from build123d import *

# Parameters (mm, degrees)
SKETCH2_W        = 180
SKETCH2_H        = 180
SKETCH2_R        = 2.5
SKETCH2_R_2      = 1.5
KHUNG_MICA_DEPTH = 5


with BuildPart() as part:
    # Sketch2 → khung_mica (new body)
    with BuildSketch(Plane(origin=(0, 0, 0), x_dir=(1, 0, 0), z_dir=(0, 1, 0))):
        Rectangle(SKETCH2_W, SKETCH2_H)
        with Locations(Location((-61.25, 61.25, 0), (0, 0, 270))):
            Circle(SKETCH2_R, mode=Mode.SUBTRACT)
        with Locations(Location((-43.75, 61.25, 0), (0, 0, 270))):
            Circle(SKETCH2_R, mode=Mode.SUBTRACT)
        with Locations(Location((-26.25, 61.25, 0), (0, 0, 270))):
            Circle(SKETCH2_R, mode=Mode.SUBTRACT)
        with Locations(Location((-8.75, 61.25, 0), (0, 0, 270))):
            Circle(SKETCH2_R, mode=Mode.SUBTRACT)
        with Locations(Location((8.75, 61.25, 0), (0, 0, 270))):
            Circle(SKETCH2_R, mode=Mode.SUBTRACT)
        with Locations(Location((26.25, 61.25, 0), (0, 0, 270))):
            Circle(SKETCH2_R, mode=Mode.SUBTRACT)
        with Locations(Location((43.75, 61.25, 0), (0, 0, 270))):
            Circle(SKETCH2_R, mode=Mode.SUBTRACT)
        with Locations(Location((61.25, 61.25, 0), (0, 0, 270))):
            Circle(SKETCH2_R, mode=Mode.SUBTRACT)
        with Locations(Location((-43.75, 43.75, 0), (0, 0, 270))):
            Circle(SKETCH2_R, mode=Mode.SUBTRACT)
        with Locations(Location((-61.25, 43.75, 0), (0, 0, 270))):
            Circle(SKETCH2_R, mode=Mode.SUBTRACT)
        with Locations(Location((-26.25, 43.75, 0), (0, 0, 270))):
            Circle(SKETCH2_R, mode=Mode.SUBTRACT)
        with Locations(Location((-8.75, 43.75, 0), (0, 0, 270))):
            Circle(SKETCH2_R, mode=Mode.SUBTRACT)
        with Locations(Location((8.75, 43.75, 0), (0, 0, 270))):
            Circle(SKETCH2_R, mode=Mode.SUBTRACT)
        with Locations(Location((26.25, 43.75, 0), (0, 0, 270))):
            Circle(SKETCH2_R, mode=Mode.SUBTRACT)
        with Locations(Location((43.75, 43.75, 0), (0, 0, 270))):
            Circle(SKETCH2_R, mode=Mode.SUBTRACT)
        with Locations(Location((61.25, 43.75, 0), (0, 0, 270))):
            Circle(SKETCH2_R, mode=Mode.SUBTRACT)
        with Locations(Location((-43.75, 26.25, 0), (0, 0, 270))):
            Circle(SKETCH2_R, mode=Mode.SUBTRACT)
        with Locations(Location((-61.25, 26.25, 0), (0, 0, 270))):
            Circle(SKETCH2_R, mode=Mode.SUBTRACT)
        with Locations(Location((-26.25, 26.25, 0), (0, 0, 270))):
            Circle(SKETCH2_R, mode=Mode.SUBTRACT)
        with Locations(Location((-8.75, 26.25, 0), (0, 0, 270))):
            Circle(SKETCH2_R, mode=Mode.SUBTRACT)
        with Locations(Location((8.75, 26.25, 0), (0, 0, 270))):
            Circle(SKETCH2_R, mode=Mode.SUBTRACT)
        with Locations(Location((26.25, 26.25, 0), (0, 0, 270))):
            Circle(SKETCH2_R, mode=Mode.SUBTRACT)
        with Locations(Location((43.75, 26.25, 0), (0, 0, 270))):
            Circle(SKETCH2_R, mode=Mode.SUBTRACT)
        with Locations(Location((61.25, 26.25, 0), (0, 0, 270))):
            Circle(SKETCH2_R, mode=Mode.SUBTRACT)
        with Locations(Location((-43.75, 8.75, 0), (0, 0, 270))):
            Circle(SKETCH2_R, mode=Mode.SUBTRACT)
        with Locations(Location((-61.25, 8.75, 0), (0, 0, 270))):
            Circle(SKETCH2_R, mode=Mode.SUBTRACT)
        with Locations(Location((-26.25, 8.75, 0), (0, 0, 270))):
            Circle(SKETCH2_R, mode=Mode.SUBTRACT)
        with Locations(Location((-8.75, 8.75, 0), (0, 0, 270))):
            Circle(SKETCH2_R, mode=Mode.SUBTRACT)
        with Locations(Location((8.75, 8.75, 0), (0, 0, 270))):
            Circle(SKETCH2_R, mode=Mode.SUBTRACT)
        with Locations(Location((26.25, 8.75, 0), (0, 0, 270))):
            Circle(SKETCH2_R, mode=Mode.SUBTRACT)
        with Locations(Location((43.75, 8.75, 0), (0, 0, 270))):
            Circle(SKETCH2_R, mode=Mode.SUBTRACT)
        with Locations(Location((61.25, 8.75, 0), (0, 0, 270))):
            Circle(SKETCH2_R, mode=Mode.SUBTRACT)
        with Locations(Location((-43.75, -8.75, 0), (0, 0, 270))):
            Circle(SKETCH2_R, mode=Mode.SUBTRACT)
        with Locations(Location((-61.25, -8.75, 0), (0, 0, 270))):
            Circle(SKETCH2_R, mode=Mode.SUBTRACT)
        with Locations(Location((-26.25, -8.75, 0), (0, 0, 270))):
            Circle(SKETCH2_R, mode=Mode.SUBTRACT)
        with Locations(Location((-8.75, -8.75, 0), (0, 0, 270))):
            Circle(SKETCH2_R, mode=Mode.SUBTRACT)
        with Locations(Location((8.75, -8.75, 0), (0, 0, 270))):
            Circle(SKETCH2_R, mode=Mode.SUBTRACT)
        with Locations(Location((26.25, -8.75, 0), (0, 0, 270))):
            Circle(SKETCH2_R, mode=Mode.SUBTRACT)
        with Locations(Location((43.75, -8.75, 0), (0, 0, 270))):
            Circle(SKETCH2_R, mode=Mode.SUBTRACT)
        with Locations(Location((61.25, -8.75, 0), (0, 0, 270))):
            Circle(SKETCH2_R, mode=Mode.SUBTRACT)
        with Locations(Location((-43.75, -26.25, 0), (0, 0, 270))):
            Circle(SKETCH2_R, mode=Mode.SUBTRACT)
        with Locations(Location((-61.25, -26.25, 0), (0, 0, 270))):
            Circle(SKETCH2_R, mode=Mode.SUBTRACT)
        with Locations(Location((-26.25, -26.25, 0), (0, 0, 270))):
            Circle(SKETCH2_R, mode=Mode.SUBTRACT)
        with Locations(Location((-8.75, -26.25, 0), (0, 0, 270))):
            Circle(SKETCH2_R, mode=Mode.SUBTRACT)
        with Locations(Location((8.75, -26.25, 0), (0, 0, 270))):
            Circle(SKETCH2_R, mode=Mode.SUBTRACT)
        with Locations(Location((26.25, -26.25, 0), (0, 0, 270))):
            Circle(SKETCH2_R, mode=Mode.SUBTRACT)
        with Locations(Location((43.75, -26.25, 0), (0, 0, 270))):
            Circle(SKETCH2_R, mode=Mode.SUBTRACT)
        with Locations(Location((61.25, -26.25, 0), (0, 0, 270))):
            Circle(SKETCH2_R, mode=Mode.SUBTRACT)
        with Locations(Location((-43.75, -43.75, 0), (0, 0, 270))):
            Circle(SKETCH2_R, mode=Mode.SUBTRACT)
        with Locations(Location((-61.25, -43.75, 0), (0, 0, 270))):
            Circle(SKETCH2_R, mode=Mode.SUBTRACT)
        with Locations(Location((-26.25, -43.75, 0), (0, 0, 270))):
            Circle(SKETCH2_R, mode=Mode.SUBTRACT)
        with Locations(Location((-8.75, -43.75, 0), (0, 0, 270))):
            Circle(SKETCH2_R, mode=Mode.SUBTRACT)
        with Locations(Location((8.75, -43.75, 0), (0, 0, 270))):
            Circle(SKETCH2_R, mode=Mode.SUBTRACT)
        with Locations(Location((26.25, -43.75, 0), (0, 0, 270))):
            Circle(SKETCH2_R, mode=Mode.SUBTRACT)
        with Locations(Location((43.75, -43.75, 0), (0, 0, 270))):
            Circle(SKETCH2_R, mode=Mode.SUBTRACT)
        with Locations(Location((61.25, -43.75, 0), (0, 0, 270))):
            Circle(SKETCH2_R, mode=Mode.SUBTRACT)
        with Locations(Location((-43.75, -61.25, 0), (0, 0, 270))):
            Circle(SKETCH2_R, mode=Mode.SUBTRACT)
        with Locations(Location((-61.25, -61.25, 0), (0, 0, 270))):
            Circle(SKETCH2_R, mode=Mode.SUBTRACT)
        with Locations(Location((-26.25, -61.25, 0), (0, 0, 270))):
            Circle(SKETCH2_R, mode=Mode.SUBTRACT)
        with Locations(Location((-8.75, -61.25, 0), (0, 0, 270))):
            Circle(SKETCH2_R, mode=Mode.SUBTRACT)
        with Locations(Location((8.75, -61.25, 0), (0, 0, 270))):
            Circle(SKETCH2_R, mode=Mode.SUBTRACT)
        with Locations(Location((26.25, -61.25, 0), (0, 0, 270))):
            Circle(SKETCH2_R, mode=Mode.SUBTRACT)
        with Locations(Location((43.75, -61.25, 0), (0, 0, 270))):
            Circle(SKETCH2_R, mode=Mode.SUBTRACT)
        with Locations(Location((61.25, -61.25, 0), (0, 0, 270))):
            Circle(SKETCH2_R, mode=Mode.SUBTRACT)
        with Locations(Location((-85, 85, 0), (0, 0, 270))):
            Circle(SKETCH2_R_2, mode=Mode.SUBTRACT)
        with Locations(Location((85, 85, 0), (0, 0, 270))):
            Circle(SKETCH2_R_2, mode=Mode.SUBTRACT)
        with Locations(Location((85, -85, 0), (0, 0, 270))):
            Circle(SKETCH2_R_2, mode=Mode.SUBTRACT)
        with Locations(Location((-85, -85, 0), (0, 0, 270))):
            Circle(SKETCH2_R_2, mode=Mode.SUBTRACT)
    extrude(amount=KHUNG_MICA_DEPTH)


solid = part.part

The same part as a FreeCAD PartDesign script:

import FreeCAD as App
import Part
import Sketcher

V = App.Vector


def add_polygon(sketch, points):
    """Adds a closed chain of lines whose ends are joined by coincident constraints."""
    first, n = sketch.GeometryCount, len(points)
    for a, b in zip(points, points[1:] + points[:1]):
        sketch.addGeometry(Part.LineSegment(App.Vector(*a, 0), App.Vector(*b, 0)), False)
    for i in range(n):
        sketch.addConstraint(Sketcher.Constraint("Coincident", first + i, 2, first + (i + 1) % n, 1))

doc = App.newDocument("Part")
body = doc.addObject("PartDesign::Body", "Body")

# Sketch on XZ plane
sketch1 = body.newObject("Sketcher::SketchObject", "Sketch")
sketch1.AttachmentSupport = (doc.getObject("XZ_Plane"), [""])
sketch1.MapMode = "FlatFace"
add_polygon(sketch1, [(-90, -90), (-90, 90), (90, 90), (90, -90)])  # lines 0-3
sketch1.addGeometry(Part.Circle(V(-85, 85, 0), V(0, 0, 1), 1.5), False)  # 4
sketch1.addGeometry(Part.Circle(V(-61.2, 61.2, 0), V(0, 0, 1), 2.5), False)  # 5
sketch1.addGeometry(Part.Circle(V(-43.8, 61.2, 0), V(0, 0, 1), 2.5), False)  # 6
sketch1.addGeometry(Part.Circle(V(-61.2, 43.8, 0), V(0, 0, 1), 2.5), False)  # 7
sketch1.addGeometry(Part.Circle(V(-43.8, 43.8, 0), V(0, 0, 1), 2.5), False)  # 8
sketch1.addGeometry(Part.Circle(V(-26.2, 61.2, 0), V(0, 0, 1), 2.5), False)  # 9
sketch1.addGeometry(Part.Circle(V(-26.2, 43.8, 0), V(0, 0, 1), 2.5), False)  # 10
sketch1.addGeometry(Part.Circle(V(-8.8, 61.2, 0), V(0, 0, 1), 2.5), False)  # 11
sketch1.addGeometry(Part.Circle(V(-8.8, 43.8, 0), V(0, 0, 1), 2.5), False)  # 12
sketch1.addGeometry(Part.Circle(V(-61.2, 26.2, 0), V(0, 0, 1), 2.5), False)  # 13
sketch1.addGeometry(Part.Circle(V(-43.8, 26.2, 0), V(0, 0, 1), 2.5), False)  # 14
sketch1.addGeometry(Part.Circle(V(-61.2, 8.8, 0), V(0, 0, 1), 2.5), False)  # 15
sketch1.addGeometry(Part.Circle(V(-43.8, 8.8, 0), V(0, 0, 1), 2.5), False)  # 16
sketch1.addGeometry(Part.Circle(V(-26.2, 26.2, 0), V(0, 0, 1), 2.5), False)  # 17
sketch1.addGeometry(Part.Circle(V(-8.8, 26.2, 0), V(0, 0, 1), 2.5), False)  # 18
sketch1.addGeometry(Part.Circle(V(-26.2, 8.8, 0), V(0, 0, 1), 2.5), False)  # 19
sketch1.addGeometry(Part.Circle(V(-8.8, 8.8, 0), V(0, 0, 1), 2.5), False)  # 20
sketch1.addGeometry(Part.Circle(V(8.8, 61.2, 0), V(0, 0, 1), 2.5), False)  # 21
sketch1.addGeometry(Part.Circle(V(8.8, 43.8, 0), V(0, 0, 1), 2.5), False)  # 22
sketch1.addGeometry(Part.Circle(V(26.2, 61.2, 0), V(0, 0, 1), 2.5), False)  # 23
sketch1.addGeometry(Part.Circle(V(26.2, 43.8, 0), V(0, 0, 1), 2.5), False)  # 24
sketch1.addGeometry(Part.Circle(V(85, 85, 0), V(0, 0, 1), 1.5), False)  # 25
sketch1.addGeometry(Part.Circle(V(43.8, 61.2, 0), V(0, 0, 1), 2.5), False)  # 26
sketch1.addGeometry(Part.Circle(V(61.2, 61.2, 0), V(0, 0, 1), 2.5), False)  # 27
sketch1.addGeometry(Part.Circle(V(43.8, 43.8, 0), V(0, 0, 1), 2.5), False)  # 28
sketch1.addGeometry(Part.Circle(V(61.2, 43.8, 0), V(0, 0, 1), 2.5), False)  # 29
sketch1.addGeometry(Part.Circle(V(8.8, 26.2, 0), V(0, 0, 1), 2.5), False)  # 30
sketch1.addGeometry(Part.Circle(V(26.2, 26.2, 0), V(0, 0, 1), 2.5), False)  # 31
sketch1.addGeometry(Part.Circle(V(8.8, 8.8, 0), V(0, 0, 1), 2.5), False)  # 32
sketch1.addGeometry(Part.Circle(V(26.2, 8.8, 0), V(0, 0, 1), 2.5), False)  # 33
sketch1.addGeometry(Part.Circle(V(43.8, 26.2, 0), V(0, 0, 1), 2.5), False)  # 34
sketch1.addGeometry(Part.Circle(V(61.2, 26.2, 0), V(0, 0, 1), 2.5), False)  # 35
sketch1.addGeometry(Part.Circle(V(43.8, 8.8, 0), V(0, 0, 1), 2.5), False)  # 36
sketch1.addGeometry(Part.Circle(V(61.2, 8.8, 0), V(0, 0, 1), 2.5), False)  # 37
sketch1.addGeometry(Part.Circle(V(-61.2, -8.8, 0), V(0, 0, 1), 2.5), False)  # 38
sketch1.addGeometry(Part.Circle(V(-43.8, -8.8, 0), V(0, 0, 1), 2.5), False)  # 39
sketch1.addGeometry(Part.Circle(V(-61.2, -26.2, 0), V(0, 0, 1), 2.5), False)  # 40
sketch1.addGeometry(Part.Circle(V(-43.8, -26.2, 0), V(0, 0, 1), 2.5), False)  # 41
sketch1.addGeometry(Part.Circle(V(-26.2, -8.8, 0), V(0, 0, 1), 2.5), False)  # 42
sketch1.addGeometry(Part.Circle(V(-8.8, -8.8, 0), V(0, 0, 1), 2.5), False)  # 43
sketch1.addGeometry(Part.Circle(V(-26.2, -26.2, 0), V(0, 0, 1), 2.5), False)  # 44
sketch1.addGeometry(Part.Circle(V(-8.8, -26.2, 0), V(0, 0, 1), 2.5), False)  # 45
sketch1.addGeometry(Part.Circle(V(-61.2, -43.8, 0), V(0, 0, 1), 2.5), False)  # 46
sketch1.addGeometry(Part.Circle(V(-43.8, -43.8, 0), V(0, 0, 1), 2.5), False)  # 47
sketch1.addGeometry(Part.Circle(V(-61.2, -61.2, 0), V(0, 0, 1), 2.5), False)  # 48
sketch1.addGeometry(Part.Circle(V(-43.8, -61.2, 0), V(0, 0, 1), 2.5), False)  # 49
sketch1.addGeometry(Part.Circle(V(-85, -85, 0), V(0, 0, 1), 1.5), False)  # 50
sketch1.addGeometry(Part.Circle(V(-26.2, -43.8, 0), V(0, 0, 1), 2.5), False)  # 51
sketch1.addGeometry(Part.Circle(V(-26.2, -61.2, 0), V(0, 0, 1), 2.5), False)  # 52
sketch1.addGeometry(Part.Circle(V(-8.8, -43.8, 0), V(0, 0, 1), 2.5), False)  # 53
sketch1.addGeometry(Part.Circle(V(-8.8, -61.2, 0), V(0, 0, 1), 2.5), False)  # 54
sketch1.addGeometry(Part.Circle(V(8.8, -8.8, 0), V(0, 0, 1), 2.5), False)  # 55
sketch1.addGeometry(Part.Circle(V(26.2, -8.8, 0), V(0, 0, 1), 2.5), False)  # 56
sketch1.addGeometry(Part.Circle(V(8.8, -26.2, 0), V(0, 0, 1), 2.5), False)  # 57
sketch1.addGeometry(Part.Circle(V(26.2, -26.2, 0), V(0, 0, 1), 2.5), False)  # 58
sketch1.addGeometry(Part.Circle(V(43.8, -8.8, 0), V(0, 0, 1), 2.5), False)  # 59
sketch1.addGeometry(Part.Circle(V(61.2, -8.8, 0), V(0, 0, 1), 2.5), False)  # 60
sketch1.addGeometry(Part.Circle(V(43.8, -26.2, 0), V(0, 0, 1), 2.5), False)  # 61
sketch1.addGeometry(Part.Circle(V(61.2, -26.2, 0), V(0, 0, 1), 2.5), False)  # 62
sketch1.addGeometry(Part.Circle(V(8.8, -43.8, 0), V(0, 0, 1), 2.5), False)  # 63
sketch1.addGeometry(Part.Circle(V(8.8, -61.2, 0), V(0, 0, 1), 2.5), False)  # 64
sketch1.addGeometry(Part.Circle(V(26.2, -43.8, 0), V(0, 0, 1), 2.5), False)  # 65
sketch1.addGeometry(Part.Circle(V(26.2, -61.2, 0), V(0, 0, 1), 2.5), False)  # 66
sketch1.addGeometry(Part.Circle(V(43.8, -43.8, 0), V(0, 0, 1), 2.5), False)  # 67
sketch1.addGeometry(Part.Circle(V(61.2, -43.8, 0), V(0, 0, 1), 2.5), False)  # 68
sketch1.addGeometry(Part.Circle(V(43.8, -61.2, 0), V(0, 0, 1), 2.5), False)  # 69
sketch1.addGeometry(Part.Circle(V(61.2, -61.2, 0), V(0, 0, 1), 2.5), False)  # 70
sketch1.addGeometry(Part.Circle(V(85, -85, 0), V(0, 0, 1), 1.5), False)  # 71
sketch1.addConstraint(Sketcher.Constraint("Vertical", 0))
sketch1.addConstraint(Sketcher.Constraint("Horizontal", 1))
sketch1.addConstraint(Sketcher.Constraint("Vertical", 2))
sketch1.addConstraint(Sketcher.Constraint("Horizontal", 3))
sketch1.addConstraint(Sketcher.Constraint("Equal", 5, 6))
sketch1.addConstraint(Sketcher.Constraint("Equal", 6, 7))
sketch1.addConstraint(Sketcher.Constraint("Equal", 7, 8))
sketch1.addConstraint(Sketcher.Constraint("Equal", 8, 9))
sketch1.addConstraint(Sketcher.Constraint("Equal", 9, 10))
sketch1.addConstraint(Sketcher.Constraint("Equal", 10, 11))
sketch1.addConstraint(Sketcher.Constraint("Equal", 11, 12))
sketch1.addConstraint(Sketcher.Constraint("Equal", 12, 13))
sketch1.addConstraint(Sketcher.Constraint("Equal", 13, 14))
sketch1.addConstraint(Sketcher.Constraint("Equal", 14, 15))
sketch1.addConstraint(Sketcher.Constraint("Equal", 15, 16))
sketch1.addConstraint(Sketcher.Constraint("Equal", 16, 17))
sketch1.addConstraint(Sketcher.Constraint("Equal", 17, 18))
sketch1.addConstraint(Sketcher.Constraint("Equal", 18, 19))
sketch1.addConstraint(Sketcher.Constraint("Equal", 19, 20))
sketch1.addConstraint(Sketcher.Constraint("Equal", 20, 21))
sketch1.addConstraint(Sketcher.Constraint("Equal", 21, 22))
sketch1.addConstraint(Sketcher.Constraint("Equal", 22, 23))
sketch1.addConstraint(Sketcher.Constraint("Equal", 23, 24))
sketch1.addConstraint(Sketcher.Constraint("Equal", 4, 25))
sketch1.addConstraint(Sketcher.Constraint("Equal", 24, 26))
sketch1.addConstraint(Sketcher.Constraint("Equal", 26, 27))
sketch1.addConstraint(Sketcher.Constraint("Equal", 27, 28))
sketch1.addConstraint(Sketcher.Constraint("Equal", 28, 29))
sketch1.addConstraint(Sketcher.Constraint("Equal", 29, 30))
sketch1.addConstraint(Sketcher.Constraint("Equal", 30, 31))
sketch1.addConstraint(Sketcher.Constraint("Equal", 31, 32))
sketch1.addConstraint(Sketcher.Constraint("Equal", 32, 33))
sketch1.addConstraint(Sketcher.Constraint("Equal", 33, 34))
sketch1.addConstraint(Sketcher.Constraint("Equal", 34, 35))
sketch1.addConstraint(Sketcher.Constraint("Equal", 35, 36))
sketch1.addConstraint(Sketcher.Constraint("Equal", 36, 37))
sketch1.addConstraint(Sketcher.Constraint("Equal", 37, 38))
sketch1.addConstraint(Sketcher.Constraint("Equal", 38, 39))
sketch1.addConstraint(Sketcher.Constraint("Equal", 39, 40))
sketch1.addConstraint(Sketcher.Constraint("Equal", 40, 41))
sketch1.addConstraint(Sketcher.Constraint("Equal", 41, 42))
sketch1.addConstraint(Sketcher.Constraint("Equal", 42, 43))
sketch1.addConstraint(Sketcher.Constraint("Equal", 43, 44))
sketch1.addConstraint(Sketcher.Constraint("Equal", 44, 45))
sketch1.addConstraint(Sketcher.Constraint("Equal", 45, 46))
sketch1.addConstraint(Sketcher.Constraint("Equal", 46, 47))
sketch1.addConstraint(Sketcher.Constraint("Equal", 47, 48))
sketch1.addConstraint(Sketcher.Constraint("Equal", 48, 49))
sketch1.addConstraint(Sketcher.Constraint("Equal", 25, 50))
sketch1.addConstraint(Sketcher.Constraint("Equal", 49, 51))
sketch1.addConstraint(Sketcher.Constraint("Equal", 51, 52))
sketch1.addConstraint(Sketcher.Constraint("Equal", 52, 53))
sketch1.addConstraint(Sketcher.Constraint("Equal", 53, 54))
sketch1.addConstraint(Sketcher.Constraint("Equal", 54, 55))
sketch1.addConstraint(Sketcher.Constraint("Equal", 55, 56))
sketch1.addConstraint(Sketcher.Constraint("Equal", 56, 57))
sketch1.addConstraint(Sketcher.Constraint("Equal", 57, 58))
sketch1.addConstraint(Sketcher.Constraint("Equal", 58, 59))
sketch1.addConstraint(Sketcher.Constraint("Equal", 59, 60))
sketch1.addConstraint(Sketcher.Constraint("Equal", 60, 61))
sketch1.addConstraint(Sketcher.Constraint("Equal", 61, 62))
sketch1.addConstraint(Sketcher.Constraint("Equal", 62, 63))
sketch1.addConstraint(Sketcher.Constraint("Equal", 63, 64))
sketch1.addConstraint(Sketcher.Constraint("Equal", 64, 65))
sketch1.addConstraint(Sketcher.Constraint("Equal", 65, 66))
sketch1.addConstraint(Sketcher.Constraint("Equal", 66, 67))
sketch1.addConstraint(Sketcher.Constraint("Equal", 67, 68))
sketch1.addConstraint(Sketcher.Constraint("Equal", 68, 69))
sketch1.addConstraint(Sketcher.Constraint("Equal", 69, 70))
sketch1.addConstraint(Sketcher.Constraint("Equal", 50, 71))
sketch1.addConstraint(Sketcher.Constraint("Symmetric", 37, 3, 38, 3, -1, 1))
sketch1.addConstraint(Sketcher.Constraint("Symmetric", 36, 3, 39, 3, -1, 1))
sketch1.addConstraint(Sketcher.Constraint("Symmetric", 35, 3, 40, 3, -1, 1))
sketch1.addConstraint(Sketcher.Constraint("Symmetric", 34, 3, 41, 3, -1, 1))
sketch1.addConstraint(Sketcher.Constraint("Symmetric", 33, 3, 42, 3, -1, 1))
sketch1.addConstraint(Sketcher.Constraint("Symmetric", 32, 3, 43, 3, -1, 1))
sketch1.addConstraint(Sketcher.Constraint("Symmetric", 31, 3, 44, 3, -1, 1))
sketch1.addConstraint(Sketcher.Constraint("Symmetric", 30, 3, 45, 3, -1, 1))
sketch1.addConstraint(Sketcher.Constraint("Symmetric", 29, 3, 46, 3, -1, 1))
sketch1.addConstraint(Sketcher.Constraint("Symmetric", 28, 3, 47, 3, -1, 1))
sketch1.addConstraint(Sketcher.Constraint("Symmetric", 27, 3, 48, 3, -1, 1))
sketch1.addConstraint(Sketcher.Constraint("Symmetric", 26, 3, 49, 3, -1, 1))
sketch1.addConstraint(Sketcher.Constraint("Symmetric", 25, 3, 50, 3, -1, 1))
sketch1.addConstraint(Sketcher.Constraint("Symmetric", 24, 3, 51, 3, -1, 1))
sketch1.addConstraint(Sketcher.Constraint("Symmetric", 23, 3, 52, 3, -1, 1))
sketch1.addConstraint(Sketcher.Constraint("Symmetric", 22, 3, 53, 3, -1, 1))
sketch1.addConstraint(Sketcher.Constraint("Symmetric", 21, 3, 54, 3, -1, 1))
sketch1.addConstraint(Sketcher.Constraint("Symmetric", 20, 3, 55, 3, -1, 1))
sketch1.addConstraint(Sketcher.Constraint("Symmetric", 19, 3, 56, 3, -1, 1))
sketch1.addConstraint(Sketcher.Constraint("Symmetric", 18, 3, 57, 3, -1, 1))
sketch1.addConstraint(Sketcher.Constraint("Symmetric", 17, 3, 58, 3, -1, 1))
sketch1.addConstraint(Sketcher.Constraint("Symmetric", 16, 3, 59, 3, -1, 1))
sketch1.addConstraint(Sketcher.Constraint("Symmetric", 15, 3, 60, 3, -1, 1))
sketch1.addConstraint(Sketcher.Constraint("Symmetric", 14, 3, 61, 3, -1, 1))
sketch1.addConstraint(Sketcher.Constraint("Symmetric", 13, 3, 62, 3, -1, 1))
sketch1.addConstraint(Sketcher.Constraint("Symmetric", 12, 3, 63, 3, -1, 1))
sketch1.addConstraint(Sketcher.Constraint("Symmetric", 11, 3, 64, 3, -1, 1))
sketch1.addConstraint(Sketcher.Constraint("Symmetric", 10, 3, 65, 3, -1, 1))
sketch1.addConstraint(Sketcher.Constraint("Symmetric", 9, 3, 66, 3, -1, 1))
sketch1.addConstraint(Sketcher.Constraint("Symmetric", 8, 3, 67, 3, -1, 1))
sketch1.addConstraint(Sketcher.Constraint("Symmetric", 7, 3, 68, 3, -1, 1))
sketch1.addConstraint(Sketcher.Constraint("Symmetric", 6, 3, 69, 3, -1, 1))
sketch1.addConstraint(Sketcher.Constraint("Symmetric", 5, 3, 70, 3, -1, 1))
sketch1.addConstraint(Sketcher.Constraint("Symmetric", 4, 3, 71, 3, -1, 1))
sketch1.addConstraint(Sketcher.Constraint("Symmetric", 0, 2, 2, 2, -1, 1))
sketch1.addConstraint(Sketcher.Constraint("Symmetric", 11, 3, 21, 3, -2))
sketch1.addConstraint(Sketcher.Constraint("Symmetric", 12, 3, 22, 3, -2))
sketch1.addConstraint(Sketcher.Constraint("Symmetric", 9, 3, 23, 3, -2))
sketch1.addConstraint(Sketcher.Constraint("Symmetric", 10, 3, 24, 3, -2))
sketch1.addConstraint(Sketcher.Constraint("Symmetric", 4, 3, 25, 3, -2))
sketch1.addConstraint(Sketcher.Constraint("Symmetric", 6, 3, 26, 3, -2))
sketch1.addConstraint(Sketcher.Constraint("Symmetric", 5, 3, 27, 3, -2))
sketch1.addConstraint(Sketcher.Constraint("Symmetric", 8, 3, 28, 3, -2))
sketch1.addConstraint(Sketcher.Constraint("Symmetric", 7, 3, 29, 3, -2))
sketch1.addConstraint(Sketcher.Constraint("Symmetric", 18, 3, 30, 3, -2))
sketch1.addConstraint(Sketcher.Constraint("Symmetric", 17, 3, 31, 3, -2))
sketch1.addConstraint(Sketcher.Constraint("Symmetric", 20, 3, 32, 3, -2))
sketch1.addConstraint(Sketcher.Constraint("Symmetric", 19, 3, 33, 3, -2))
sketch1.addConstraint(Sketcher.Constraint("Symmetric", 14, 3, 34, 3, -2))
sketch1.addConstraint(Sketcher.Constraint("Symmetric", 13, 3, 35, 3, -2))
sketch1.addConstraint(Sketcher.Constraint("Symmetric", 16, 3, 36, 3, -2))
sketch1.addConstraint(Sketcher.Constraint("Symmetric", 15, 3, 37, 3, -2))
sketch1.addConstraint(Sketcher.Constraint("Horizontal", 5, 3, 6, 3))
sketch1.addConstraint(Sketcher.Constraint("Horizontal", 7, 3, 8, 3))
sketch1.addConstraint(Sketcher.Constraint("Horizontal", 6, 3, 9, 3))
sketch1.addConstraint(Sketcher.Constraint("Horizontal", 8, 3, 10, 3))
sketch1.addConstraint(Sketcher.Constraint("Horizontal", 9, 3, 11, 3))
sketch1.addConstraint(Sketcher.Constraint("Horizontal", 10, 3, 12, 3))
sketch1.addConstraint(Sketcher.Constraint("Horizontal", 13, 3, 14, 3))
sketch1.addConstraint(Sketcher.Constraint("Horizontal", 15, 3, 16, 3))
sketch1.addConstraint(Sketcher.Constraint("Horizontal", 14, 3, 17, 3))
sketch1.addConstraint(Sketcher.Constraint("Horizontal", 17, 3, 18, 3))
sketch1.addConstraint(Sketcher.Constraint("Horizontal", 16, 3, 19, 3))
sketch1.addConstraint(Sketcher.Constraint("Horizontal", 19, 3, 20, 3))
sketch1.addConstraint(Sketcher.Constraint("Vertical", 5, 3, 7, 3))
sketch1.addConstraint(Sketcher.Constraint("Vertical", 6, 3, 8, 3))
sketch1.addConstraint(Sketcher.Constraint("Vertical", 9, 3, 10, 3))
sketch1.addConstraint(Sketcher.Constraint("Vertical", 11, 3, 12, 3))
sketch1.addConstraint(Sketcher.Constraint("Vertical", 7, 3, 13, 3))
sketch1.addConstraint(Sketcher.Constraint("Vertical", 8, 3, 14, 3))
sketch1.addConstraint(Sketcher.Constraint("Vertical", 13, 3, 15, 3))
sketch1.addConstraint(Sketcher.Constraint("Vertical", 14, 3, 16, 3))
sketch1.addConstraint(Sketcher.Constraint("Vertical", 10, 3, 17, 3))
sketch1.addConstraint(Sketcher.Constraint("Vertical", 12, 3, 18, 3))
sketch1.addConstraint(Sketcher.Constraint("Vertical", 17, 3, 19, 3))
sketch1.addConstraint(Sketcher.Constraint("Vertical", 18, 3, 20, 3))
sketch1.addConstraint(Sketcher.Constraint("Equal", 3, 0))
sketch1.addConstraint(Sketcher.Constraint("Diameter", 4, 3.0))
sketch1.addConstraint(Sketcher.Constraint("Diameter", 5, 5.0))
sketch1.addConstraint(Sketcher.Constraint("DistanceX", 1, 1, 1, 2, 180.0))
sketch1.addConstraint(Sketcher.Constraint("DistanceX", 4, 3, -1, 1, 85.0))
sketch1.addConstraint(Sketcher.Constraint("DistanceY", -1, 1, 4, 3, 85.0))
sketch1.addConstraint(Sketcher.Constraint("DistanceX", 5, 3, -1, 1, 61.25))
sketch1.addConstraint(Sketcher.Constraint("DistanceY", -1, 1, 5, 3, 61.25))
sketch1.addConstraint(Sketcher.Constraint("DistanceX", 6, 3, -1, 1, 43.75))
sketch1.addConstraint(Sketcher.Constraint("DistanceY", -1, 1, 7, 3, 43.75))
sketch1.addConstraint(Sketcher.Constraint("DistanceX", 9, 3, -1, 1, 26.25))
sketch1.addConstraint(Sketcher.Constraint("DistanceX", 11, 3, -1, 1, 8.75))
sketch1.addConstraint(Sketcher.Constraint("DistanceY", -1, 1, 13, 3, 26.25))
sketch1.addConstraint(Sketcher.Constraint("DistanceY", -1, 1, 15, 3, 8.75))
pad1 = body.newObject("PartDesign::Pad", "Pad")
pad1.Profile = sketch1
pad1.Length = 5
pad1.Reversed = True

doc.recompute()
